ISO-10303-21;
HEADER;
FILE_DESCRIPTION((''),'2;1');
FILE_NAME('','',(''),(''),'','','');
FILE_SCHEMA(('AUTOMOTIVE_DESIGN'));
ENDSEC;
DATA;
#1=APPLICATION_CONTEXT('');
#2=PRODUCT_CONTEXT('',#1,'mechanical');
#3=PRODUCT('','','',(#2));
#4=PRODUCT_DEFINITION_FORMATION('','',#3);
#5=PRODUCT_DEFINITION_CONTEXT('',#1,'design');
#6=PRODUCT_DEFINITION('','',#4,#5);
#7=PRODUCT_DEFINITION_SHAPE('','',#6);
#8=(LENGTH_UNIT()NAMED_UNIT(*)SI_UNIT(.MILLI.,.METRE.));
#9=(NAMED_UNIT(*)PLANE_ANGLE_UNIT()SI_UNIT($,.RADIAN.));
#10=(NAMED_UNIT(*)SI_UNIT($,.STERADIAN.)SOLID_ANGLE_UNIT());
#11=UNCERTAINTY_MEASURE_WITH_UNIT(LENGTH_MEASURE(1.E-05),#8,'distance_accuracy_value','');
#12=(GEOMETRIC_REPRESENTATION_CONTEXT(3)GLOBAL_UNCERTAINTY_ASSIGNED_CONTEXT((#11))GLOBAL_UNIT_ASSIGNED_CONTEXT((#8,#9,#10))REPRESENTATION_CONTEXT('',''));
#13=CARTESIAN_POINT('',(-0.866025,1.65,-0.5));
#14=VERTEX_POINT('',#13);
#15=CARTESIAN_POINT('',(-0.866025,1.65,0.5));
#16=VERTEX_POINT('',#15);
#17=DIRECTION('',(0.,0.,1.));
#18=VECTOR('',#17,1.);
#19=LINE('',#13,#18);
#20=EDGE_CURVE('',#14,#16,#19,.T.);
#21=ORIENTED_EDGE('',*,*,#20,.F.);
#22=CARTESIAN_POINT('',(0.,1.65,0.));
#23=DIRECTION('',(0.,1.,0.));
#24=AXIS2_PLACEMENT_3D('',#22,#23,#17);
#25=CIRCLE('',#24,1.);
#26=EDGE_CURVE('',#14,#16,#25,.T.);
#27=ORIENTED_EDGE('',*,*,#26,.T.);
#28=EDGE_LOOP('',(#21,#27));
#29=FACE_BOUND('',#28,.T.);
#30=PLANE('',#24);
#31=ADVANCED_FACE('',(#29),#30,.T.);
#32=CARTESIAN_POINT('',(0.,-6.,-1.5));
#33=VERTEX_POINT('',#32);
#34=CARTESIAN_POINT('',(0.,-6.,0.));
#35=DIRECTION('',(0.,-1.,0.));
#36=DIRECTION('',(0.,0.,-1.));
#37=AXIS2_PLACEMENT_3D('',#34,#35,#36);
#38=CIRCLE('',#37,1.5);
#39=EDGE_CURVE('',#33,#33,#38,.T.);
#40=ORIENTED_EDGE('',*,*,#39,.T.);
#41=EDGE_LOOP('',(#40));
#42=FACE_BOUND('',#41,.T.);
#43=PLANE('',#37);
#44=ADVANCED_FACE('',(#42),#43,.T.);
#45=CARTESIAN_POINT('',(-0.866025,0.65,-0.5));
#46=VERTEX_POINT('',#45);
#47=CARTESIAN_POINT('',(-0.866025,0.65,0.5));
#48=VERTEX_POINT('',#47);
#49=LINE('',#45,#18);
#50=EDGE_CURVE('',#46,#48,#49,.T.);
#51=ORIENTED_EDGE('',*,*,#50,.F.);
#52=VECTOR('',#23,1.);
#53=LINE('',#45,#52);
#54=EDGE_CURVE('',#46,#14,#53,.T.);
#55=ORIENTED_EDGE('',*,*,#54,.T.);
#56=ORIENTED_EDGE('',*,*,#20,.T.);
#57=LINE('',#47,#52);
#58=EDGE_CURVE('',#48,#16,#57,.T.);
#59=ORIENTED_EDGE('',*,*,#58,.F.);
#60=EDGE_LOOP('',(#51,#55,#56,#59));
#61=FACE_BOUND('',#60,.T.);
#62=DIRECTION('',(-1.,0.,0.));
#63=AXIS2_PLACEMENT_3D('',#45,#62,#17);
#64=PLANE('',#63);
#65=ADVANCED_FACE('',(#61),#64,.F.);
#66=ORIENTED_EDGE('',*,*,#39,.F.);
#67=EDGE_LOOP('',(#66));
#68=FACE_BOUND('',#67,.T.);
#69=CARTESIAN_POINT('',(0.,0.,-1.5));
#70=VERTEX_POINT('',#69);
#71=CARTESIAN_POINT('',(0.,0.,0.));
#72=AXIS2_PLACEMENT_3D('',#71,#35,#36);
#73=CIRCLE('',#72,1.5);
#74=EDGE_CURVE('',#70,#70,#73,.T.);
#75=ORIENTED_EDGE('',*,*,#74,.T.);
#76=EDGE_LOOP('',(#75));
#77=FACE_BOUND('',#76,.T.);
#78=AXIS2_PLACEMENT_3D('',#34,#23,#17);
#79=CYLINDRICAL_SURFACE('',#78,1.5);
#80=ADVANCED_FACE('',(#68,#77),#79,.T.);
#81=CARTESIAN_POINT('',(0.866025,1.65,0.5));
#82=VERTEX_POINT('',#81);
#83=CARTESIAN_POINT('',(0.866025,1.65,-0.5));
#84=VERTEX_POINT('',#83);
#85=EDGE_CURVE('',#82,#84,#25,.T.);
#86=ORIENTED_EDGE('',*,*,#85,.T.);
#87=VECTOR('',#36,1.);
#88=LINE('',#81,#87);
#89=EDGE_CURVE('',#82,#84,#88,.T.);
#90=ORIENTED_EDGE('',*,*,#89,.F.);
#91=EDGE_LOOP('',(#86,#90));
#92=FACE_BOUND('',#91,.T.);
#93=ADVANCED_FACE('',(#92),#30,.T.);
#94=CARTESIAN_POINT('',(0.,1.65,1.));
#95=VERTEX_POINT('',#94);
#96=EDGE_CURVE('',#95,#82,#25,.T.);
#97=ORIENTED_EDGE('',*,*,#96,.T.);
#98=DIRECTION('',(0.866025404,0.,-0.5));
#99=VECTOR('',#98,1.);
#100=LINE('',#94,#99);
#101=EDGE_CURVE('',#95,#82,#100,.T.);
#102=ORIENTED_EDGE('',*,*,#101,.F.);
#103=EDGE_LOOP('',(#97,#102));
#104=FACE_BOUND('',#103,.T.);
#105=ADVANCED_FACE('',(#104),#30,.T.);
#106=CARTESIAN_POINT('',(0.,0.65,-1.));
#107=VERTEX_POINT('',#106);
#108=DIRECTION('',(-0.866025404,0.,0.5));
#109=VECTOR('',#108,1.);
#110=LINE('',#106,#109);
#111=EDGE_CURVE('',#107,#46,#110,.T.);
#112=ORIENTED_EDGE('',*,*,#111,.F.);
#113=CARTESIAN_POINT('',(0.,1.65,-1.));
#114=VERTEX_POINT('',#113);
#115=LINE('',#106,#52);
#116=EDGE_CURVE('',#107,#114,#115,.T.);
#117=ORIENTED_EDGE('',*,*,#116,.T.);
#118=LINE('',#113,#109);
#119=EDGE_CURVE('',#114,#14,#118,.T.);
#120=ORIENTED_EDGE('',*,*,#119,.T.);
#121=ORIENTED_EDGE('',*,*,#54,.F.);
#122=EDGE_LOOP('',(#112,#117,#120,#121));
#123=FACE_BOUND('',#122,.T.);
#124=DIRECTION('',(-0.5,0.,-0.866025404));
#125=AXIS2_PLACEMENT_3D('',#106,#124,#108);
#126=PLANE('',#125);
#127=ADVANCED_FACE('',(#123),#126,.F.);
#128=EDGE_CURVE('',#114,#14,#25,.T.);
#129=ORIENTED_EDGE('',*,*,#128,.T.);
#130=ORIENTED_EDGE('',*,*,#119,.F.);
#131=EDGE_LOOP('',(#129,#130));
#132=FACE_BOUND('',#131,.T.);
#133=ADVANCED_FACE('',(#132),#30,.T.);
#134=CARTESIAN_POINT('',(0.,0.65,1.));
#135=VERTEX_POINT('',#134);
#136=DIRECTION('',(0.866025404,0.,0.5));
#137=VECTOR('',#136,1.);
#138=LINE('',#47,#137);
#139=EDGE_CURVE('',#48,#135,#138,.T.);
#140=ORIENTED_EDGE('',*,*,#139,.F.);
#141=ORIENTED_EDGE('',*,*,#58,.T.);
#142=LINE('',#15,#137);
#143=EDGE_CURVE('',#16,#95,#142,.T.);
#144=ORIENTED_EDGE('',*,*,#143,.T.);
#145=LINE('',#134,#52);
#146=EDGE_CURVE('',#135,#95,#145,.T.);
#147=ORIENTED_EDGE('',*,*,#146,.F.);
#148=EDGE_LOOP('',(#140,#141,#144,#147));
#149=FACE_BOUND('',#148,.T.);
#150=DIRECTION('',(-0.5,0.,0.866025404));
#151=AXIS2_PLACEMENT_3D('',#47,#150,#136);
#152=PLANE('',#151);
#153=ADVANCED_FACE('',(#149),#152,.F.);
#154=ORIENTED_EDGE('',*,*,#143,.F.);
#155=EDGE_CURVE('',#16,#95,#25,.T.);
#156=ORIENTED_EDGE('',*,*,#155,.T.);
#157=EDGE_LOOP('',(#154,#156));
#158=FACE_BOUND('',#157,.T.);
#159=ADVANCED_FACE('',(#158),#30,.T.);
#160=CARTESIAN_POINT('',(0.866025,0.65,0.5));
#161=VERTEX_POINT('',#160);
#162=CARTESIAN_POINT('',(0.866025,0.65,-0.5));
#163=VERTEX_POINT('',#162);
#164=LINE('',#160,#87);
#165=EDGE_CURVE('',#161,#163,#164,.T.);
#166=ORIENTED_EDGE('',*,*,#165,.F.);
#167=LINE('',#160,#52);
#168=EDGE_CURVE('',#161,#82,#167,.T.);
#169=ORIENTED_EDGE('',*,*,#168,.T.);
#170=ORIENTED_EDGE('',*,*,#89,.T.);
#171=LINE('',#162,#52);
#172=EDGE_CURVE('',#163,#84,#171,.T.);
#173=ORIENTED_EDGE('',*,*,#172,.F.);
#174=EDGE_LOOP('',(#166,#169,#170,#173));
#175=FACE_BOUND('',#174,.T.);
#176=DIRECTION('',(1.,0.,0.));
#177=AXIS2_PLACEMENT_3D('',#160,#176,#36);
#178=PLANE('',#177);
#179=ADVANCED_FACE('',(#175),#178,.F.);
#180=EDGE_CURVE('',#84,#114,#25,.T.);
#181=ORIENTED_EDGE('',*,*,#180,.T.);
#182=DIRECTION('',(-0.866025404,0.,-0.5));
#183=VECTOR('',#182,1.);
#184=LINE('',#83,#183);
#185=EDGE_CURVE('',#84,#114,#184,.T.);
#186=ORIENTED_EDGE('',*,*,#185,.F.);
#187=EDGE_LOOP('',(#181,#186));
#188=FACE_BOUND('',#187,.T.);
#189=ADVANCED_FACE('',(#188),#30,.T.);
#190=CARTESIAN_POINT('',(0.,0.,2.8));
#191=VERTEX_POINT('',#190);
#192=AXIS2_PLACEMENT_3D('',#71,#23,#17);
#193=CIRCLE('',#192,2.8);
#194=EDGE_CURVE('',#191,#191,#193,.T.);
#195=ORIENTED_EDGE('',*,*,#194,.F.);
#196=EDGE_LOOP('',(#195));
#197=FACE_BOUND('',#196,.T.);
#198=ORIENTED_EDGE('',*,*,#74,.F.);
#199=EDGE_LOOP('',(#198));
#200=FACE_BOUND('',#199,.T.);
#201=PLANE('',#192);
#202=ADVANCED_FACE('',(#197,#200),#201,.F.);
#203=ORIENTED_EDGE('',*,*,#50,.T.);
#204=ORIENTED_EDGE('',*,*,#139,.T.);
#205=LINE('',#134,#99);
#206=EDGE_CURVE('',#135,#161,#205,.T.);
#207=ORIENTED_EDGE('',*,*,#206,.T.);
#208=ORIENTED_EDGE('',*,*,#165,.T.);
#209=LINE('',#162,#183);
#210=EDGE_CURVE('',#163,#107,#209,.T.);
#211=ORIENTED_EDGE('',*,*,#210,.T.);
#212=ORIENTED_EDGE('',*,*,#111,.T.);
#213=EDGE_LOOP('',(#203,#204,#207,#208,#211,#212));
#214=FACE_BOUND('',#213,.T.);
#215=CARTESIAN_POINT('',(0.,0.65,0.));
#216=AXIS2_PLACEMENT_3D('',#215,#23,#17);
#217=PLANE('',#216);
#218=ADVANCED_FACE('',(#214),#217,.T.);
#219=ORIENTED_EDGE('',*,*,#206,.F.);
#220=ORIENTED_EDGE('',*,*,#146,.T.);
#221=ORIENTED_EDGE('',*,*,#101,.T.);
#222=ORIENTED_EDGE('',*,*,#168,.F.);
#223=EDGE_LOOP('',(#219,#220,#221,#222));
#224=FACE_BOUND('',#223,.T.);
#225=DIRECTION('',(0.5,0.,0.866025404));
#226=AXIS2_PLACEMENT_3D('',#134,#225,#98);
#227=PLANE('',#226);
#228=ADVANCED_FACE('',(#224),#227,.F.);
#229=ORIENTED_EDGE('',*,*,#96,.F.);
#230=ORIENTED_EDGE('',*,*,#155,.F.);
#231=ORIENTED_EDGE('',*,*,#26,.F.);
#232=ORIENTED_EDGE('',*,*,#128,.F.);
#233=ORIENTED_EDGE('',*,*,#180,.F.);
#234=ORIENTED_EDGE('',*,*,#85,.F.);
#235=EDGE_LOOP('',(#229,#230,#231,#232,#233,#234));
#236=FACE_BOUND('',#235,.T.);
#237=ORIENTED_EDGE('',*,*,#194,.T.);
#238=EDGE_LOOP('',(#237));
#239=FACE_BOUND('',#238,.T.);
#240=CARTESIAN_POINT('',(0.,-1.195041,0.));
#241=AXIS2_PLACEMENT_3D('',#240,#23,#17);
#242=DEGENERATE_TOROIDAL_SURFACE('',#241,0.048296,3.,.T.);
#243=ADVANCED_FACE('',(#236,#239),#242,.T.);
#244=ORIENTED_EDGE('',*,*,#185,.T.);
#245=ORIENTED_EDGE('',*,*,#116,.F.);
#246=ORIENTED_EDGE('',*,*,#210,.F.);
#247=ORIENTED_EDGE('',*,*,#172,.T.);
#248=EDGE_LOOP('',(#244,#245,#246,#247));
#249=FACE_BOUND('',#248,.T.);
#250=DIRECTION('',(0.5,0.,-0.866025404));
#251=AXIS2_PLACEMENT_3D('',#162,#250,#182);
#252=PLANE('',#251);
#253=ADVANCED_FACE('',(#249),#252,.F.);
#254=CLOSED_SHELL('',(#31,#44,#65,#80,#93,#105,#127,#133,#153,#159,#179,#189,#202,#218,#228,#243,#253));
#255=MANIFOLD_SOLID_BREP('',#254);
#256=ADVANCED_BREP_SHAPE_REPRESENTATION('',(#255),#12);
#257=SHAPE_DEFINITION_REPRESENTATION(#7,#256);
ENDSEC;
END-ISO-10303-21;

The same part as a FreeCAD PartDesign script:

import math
import FreeCAD as App
import Part
import Sketcher
from FreeCAD import Vector
Q = App.Units.Quantity


def add_polygon(sketch, points):
    """Adds a closed chain of lines whose ends are joined by coincident constraints."""
    first, n = sketch.GeometryCount, len(points)
    for a, b in zip(points, points[1:] + points[:1]):
        sketch.addGeometry(Part.LineSegment(App.Vector(*a, 0), App.Vector(*b, 0)), False)
    for i in range(n):
        sketch.addConstraint(Sketcher.Constraint("Coincident", first + i, 2, first + (i + 1) % n, 1))

doc = App.newDocument("Part")
body = doc.addObject("PartDesign::Body", "Body")

# Sketch on YZ plane
sketch1 = body.newObject("Sketcher::SketchObject", "Sketch")
sketch1.AttachmentSupport = (doc.getObject("YZ_Plane"), [""])
sketch1.MapMode = "FlatFace"
sketch1.addGeometry([
    Part.LineSegment(Vector(0, 0, 0), Vector(1.65, 0, 0)),
    Part.LineSegment(Vector(1.65, 0, 0), Vector(1.65, 1, 0)),
    Part.ArcOfCircle(Part.Circle(Vector(-1.195041, 0.048296, 0), Vector(0, 0, 1), 3), math.radians(18.495778), math.radians(66.525116)),
    Part.LineSegment(Vector(0, 2.8, 0), Vector(0, 0, 0)),
], False)
sketch1.addConstraint([
    Sketcher.Constraint("Coincident", 0, 2, 1, 1),
    Sketcher.Constraint("Coincident", 1, 2, 2, 1),
    Sketcher.Constraint("Coincident", 2, 2, 3, 1),
    Sketcher.Constraint("Coincident", 3, 2, 0, 1),
    Sketcher.Constraint("Horizontal", 0),
    Sketcher.Constraint("Vertical", 1),
    Sketcher.Constraint("Vertical", 3),
    Sketcher.Constraint("Coincident", 3, 2, -1, 1),
    Sketcher.Constraint("Radius", 2, Q("3 mm")),
    Sketcher.Constraint("DistanceY", 1, 1, 1, 2, Q("1 mm")),
    Sketcher.Constraint("DistanceY", 3, 2, 3, 1, Q("2.8 mm")),
    Sketcher.Constraint("DistanceX", 0, 1, 0, 2, Q("1.65 mm")),
])
revolution = body.newObject("PartDesign::Revolution", "Revolution")
revolution.Profile = sketch1
revolution.ReferenceAxis = (sketch1, ["H_Axis"])
revolution.Angle = 360

# Sketch on XZ plane
sketch2 = body.newObject("Sketcher::SketchObject", "Sketch001")
sketch2.AttachmentSupport = (doc.getObject("XZ_Plane"), [""])
sketch2.MapMode = "FlatFace"
sketch2.addGeometry(Part.Circle(Vector(0, 0, 0), Vector(0, 0, 1), 1.5), False)
sketch2.addConstraint([
    Sketcher.Constraint("Coincident", 0, 3, -1, 1),
    Sketcher.Constraint("Diameter", 0, Q("3 mm")),
])
pad1 = body.newObject("PartDesign::Pad", "Pad")
pad1.Profile = sketch2
pad1.Length = 6

# Sketch on XZ plane
sketch3 = body.newObject("Sketcher::SketchObject", "Sketch002")
sketch3.AttachmentSupport = (doc.getObject("XZ_Plane"), [""])
sketch3.MapMode = "FlatFace"
sketch3.AttachmentOffset = App.Placement(Vector(0, 0, -1.65), App.Rotation())
add_polygon(sketch3, [(0, -1), (-0.866025, -0.5), (-0.866025, 0.5), (0, 1), (0.866025, 0.5), (0.866025, -0.5)])  # lines 0-5
sketch3.addConstraint([
    Sketcher.Constraint("Vertical", 1),
    Sketcher.Constraint("Vertical", 4),
    Sketcher.Constraint("Symmetric", 0, 2, 3, 2, -1, 1),
    Sketcher.Constraint("Symmetric", 2, 2, 5, 2, -1, 1),
    Sketcher.Constraint("PointOnObject", 2, 2, -2),
    Sketcher.Constraint("Parallel", 2, 5),
    Sketcher.Constraint("Horizontal", 1, 2, 3, 2),
    Sketcher.Constraint("DistanceY", 1, 1, 1, 2, Q("1 mm")),
    Sketcher.Constraint("Angle", 0, Q("150 deg")),
    Sketcher.Constraint("Distance", 0, Q("1 mm")),
])
pocket1 = body.newObject("PartDesign::Pocket", "Pocket")
pocket1.Profile = sketch3
pocket1.Length = 1
pocket1.Reversed = True

doc.recompute()
